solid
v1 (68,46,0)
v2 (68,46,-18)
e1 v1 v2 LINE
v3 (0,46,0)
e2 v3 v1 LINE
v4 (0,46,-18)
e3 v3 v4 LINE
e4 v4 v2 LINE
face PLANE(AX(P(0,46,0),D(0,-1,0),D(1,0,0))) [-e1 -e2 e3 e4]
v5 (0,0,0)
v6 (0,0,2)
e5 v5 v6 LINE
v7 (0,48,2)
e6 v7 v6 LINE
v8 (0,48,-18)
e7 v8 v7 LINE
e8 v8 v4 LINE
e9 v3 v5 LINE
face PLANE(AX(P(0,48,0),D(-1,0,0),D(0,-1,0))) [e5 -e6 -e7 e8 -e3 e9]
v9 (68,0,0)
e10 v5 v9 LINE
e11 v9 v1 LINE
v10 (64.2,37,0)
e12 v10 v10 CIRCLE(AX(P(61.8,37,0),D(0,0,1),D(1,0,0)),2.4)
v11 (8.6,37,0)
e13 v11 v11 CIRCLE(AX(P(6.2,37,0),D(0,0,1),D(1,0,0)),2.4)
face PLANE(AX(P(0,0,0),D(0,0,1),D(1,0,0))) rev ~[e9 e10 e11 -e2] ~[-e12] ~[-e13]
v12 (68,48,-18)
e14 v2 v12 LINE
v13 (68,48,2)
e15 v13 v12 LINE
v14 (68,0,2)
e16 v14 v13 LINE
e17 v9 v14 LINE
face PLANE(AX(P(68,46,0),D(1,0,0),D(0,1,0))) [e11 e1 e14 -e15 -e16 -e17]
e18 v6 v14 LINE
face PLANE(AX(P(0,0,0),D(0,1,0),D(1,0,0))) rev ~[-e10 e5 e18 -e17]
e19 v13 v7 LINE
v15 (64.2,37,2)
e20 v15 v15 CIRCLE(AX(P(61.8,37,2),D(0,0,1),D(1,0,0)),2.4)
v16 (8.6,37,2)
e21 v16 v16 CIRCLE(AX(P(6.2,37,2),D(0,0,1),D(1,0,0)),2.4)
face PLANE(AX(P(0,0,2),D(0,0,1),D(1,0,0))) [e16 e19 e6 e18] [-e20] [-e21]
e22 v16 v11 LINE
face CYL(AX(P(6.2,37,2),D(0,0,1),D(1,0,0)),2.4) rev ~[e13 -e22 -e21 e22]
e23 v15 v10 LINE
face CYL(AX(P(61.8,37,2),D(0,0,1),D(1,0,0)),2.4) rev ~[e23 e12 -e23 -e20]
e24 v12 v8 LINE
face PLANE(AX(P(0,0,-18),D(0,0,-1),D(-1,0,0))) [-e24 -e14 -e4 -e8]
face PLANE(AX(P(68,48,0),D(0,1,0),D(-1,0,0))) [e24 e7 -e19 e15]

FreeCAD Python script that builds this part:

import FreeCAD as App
import Part
import Sketcher


def add_polygon(sketch, points):
    """Adds a closed chain of lines whose ends are joined by coincident constraints."""
    first, n = sketch.GeometryCount, len(points)
    for a, b in zip(points, points[1:] + points[:1]):
        sketch.addGeometry(Part.LineSegment(App.Vector(*a, 0), App.Vector(*b, 0)), False)
    for i in range(n):
        sketch.addConstraint(Sketcher.Constraint("Coincident", first + i, 2, first + (i + 1) % n, 1))

doc = App.newDocument("Part")
body = doc.addObject("PartDesign::Body", "Body")

# Sketch on XY plane
sketch1 = body.newObject("Sketcher::SketchObject", "Sketch")
sketch1.AttachmentSupport = (doc.getObject("XY_Plane"), [""])
sketch1.MapMode = "FlatFace"
add_polygon(sketch1, [(0, 48), (0, 0), (68, 0), (68, 48)])  # lines 0-3
sketch1.addConstraint(Sketcher.Constraint("Vertical", 0))
sketch1.addConstraint(Sketcher.Constraint("Horizontal", 1))
sketch1.addConstraint(Sketcher.Constraint("Vertical", 2))
sketch1.addConstraint(Sketcher.Constraint("Horizontal", 3))
sketch1.addConstraint(Sketcher.Constraint("Coincident", 0, 2, -1, 1))
sketch1.addConstraint(Sketcher.Constraint("DistanceX", 1, 1, 1, 2, 68.0))
sketch1.addConstraint(Sketcher.Constraint("DistanceY", 0, 2, 0, 1, 48.0))
pad1 = body.newObject("PartDesign::Pad", "Pad")
pad1.Profile = sketch1
pad1.Length = 2

# Sketch on XY plane
sketch2 = body.newObject("Sketcher::SketchObject", "Sketch001")
sketch2.AttachmentSupport = (doc.getObject("XY_Plane"), [""])
sketch2.MapMode = "FlatFace"
sketch2.AttachmentOffset = App.Placement(App.Vector(0, 0, 2), App.Rotation())
sketch2.addGeometry(Part.Circle(App.Vector(6.2, 37, 0), App.Vector(0, 0, 1), 2.4), False)
sketch2.addGeometry(Part.Circle(App.Vector(61.8, 37, 0), App.Vector(0, 0, 1), 2.4), False)
sketch2.addConstraint(Sketcher.Constraint("Equal", 0, 1))
sketch2.addConstraint(Sketcher.Constraint("Horizontal", 0, 3, 1, 3))
sketch2.addConstraint(Sketcher.Constraint("Diameter", 0, 4.8))
sketch2.addConstraint(Sketcher.Constraint("DistanceY", -1, 1, 0, 3, 37.0))
sketch2.addConstraint(Sketcher.Constraint("DistanceX", 0, 3, 1, 3, 55.6))
sketch2.addConstraint(Sketcher.Constraint("DistanceX", -1, 1, 0, 3, 6.2))
pocket1 = body.newObject("PartDesign::Pocket", "Pocket")
pocket1.Profile = sketch2
pocket1.Length = 2

# Sketch on XY plane
sketch3 = body.newObject("Sketcher::SketchObject", "Sketch002")
sketch3.AttachmentSupport = (doc.getObject("XY_Plane"), [""])
sketch3.MapMode = "FlatFace"
add_polygon(sketch3, [(0, 48), (68, 48), (68, 46), (0, 46)])  # lines 0-3
sketch3.addConstraint(Sketcher.Constraint("Horizontal", 0))
sketch3.addConstraint(Sketcher.Constraint("Vertical", 1))
sketch3.addConstraint(Sketcher.Constraint("Horizontal", 2))
sketch3.addConstraint(Sketcher.Constraint("Vertical", 3))
sketch3.addConstraint(Sketcher.Constraint("PointOnObject", 2, 2, -2))
sketch3.addConstraint(Sketcher.Constraint("DistanceY", 1, 2, 1, 1, 2.0))
sketch3.addConstraint(Sketcher.Constraint("DistanceX", 0, 1, 0, 2, 68.0))
sketch3.addConstraint(Sketcher.Constraint("DistanceY", -1, 1, 0, 2, 48.0))
pad2 = body.newObject("PartDesign::Pad", "Pad001")
pad2.Profile = sketch3
pad2.Length = 18
pad2.Reversed = True

doc.recompute()
